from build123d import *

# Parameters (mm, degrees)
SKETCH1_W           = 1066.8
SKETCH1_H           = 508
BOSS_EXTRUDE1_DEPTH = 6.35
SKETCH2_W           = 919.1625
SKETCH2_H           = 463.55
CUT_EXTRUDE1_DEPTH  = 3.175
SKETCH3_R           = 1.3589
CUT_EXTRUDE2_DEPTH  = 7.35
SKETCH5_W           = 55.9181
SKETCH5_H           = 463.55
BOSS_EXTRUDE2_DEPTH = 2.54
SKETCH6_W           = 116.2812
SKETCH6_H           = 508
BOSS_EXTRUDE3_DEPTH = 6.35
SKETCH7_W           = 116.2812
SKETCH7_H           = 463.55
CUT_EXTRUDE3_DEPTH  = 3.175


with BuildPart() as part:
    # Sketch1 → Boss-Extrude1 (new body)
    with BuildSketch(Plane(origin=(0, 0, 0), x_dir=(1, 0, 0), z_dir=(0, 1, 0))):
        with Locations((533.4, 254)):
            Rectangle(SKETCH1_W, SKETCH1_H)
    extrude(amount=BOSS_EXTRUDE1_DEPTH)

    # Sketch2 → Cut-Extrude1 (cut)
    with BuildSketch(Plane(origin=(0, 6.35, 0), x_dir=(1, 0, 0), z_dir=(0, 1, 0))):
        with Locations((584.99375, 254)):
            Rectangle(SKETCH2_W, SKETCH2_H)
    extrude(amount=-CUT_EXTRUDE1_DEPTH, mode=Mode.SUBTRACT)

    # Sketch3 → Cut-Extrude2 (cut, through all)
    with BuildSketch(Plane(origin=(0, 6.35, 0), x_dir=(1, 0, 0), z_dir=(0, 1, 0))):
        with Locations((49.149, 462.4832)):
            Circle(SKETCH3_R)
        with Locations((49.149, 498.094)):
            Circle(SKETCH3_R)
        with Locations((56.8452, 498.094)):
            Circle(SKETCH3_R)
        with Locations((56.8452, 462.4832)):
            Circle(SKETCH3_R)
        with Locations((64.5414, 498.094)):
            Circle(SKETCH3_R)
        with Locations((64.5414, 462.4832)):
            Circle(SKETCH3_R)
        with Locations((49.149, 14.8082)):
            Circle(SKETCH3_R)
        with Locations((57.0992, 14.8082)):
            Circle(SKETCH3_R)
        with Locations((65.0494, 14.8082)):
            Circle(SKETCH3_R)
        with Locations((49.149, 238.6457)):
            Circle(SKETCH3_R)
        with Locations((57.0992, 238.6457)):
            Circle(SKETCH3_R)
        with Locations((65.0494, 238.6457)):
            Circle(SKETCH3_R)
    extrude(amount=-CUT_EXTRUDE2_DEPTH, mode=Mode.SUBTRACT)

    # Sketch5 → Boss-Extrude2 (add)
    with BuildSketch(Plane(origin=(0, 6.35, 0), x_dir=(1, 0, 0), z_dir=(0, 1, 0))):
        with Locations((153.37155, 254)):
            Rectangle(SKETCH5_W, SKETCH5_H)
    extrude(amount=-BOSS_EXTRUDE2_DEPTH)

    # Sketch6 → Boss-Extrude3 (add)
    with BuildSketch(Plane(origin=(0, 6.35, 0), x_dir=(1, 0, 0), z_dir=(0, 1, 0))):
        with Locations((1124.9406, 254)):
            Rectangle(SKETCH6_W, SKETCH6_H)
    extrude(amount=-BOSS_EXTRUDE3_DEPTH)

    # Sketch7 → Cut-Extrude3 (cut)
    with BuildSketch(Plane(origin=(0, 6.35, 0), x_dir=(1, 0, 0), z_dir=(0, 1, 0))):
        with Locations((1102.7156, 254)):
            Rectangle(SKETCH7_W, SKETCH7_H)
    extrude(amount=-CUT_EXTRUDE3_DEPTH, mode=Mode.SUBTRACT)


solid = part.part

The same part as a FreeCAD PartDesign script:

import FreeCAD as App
import Part
import Sketcher
from FreeCAD import Vector
Q = App.Units.Quantity

doc = App.newDocument("Part")
params = doc.addObject("Spreadsheet::Sheet", "Params")
for row, (alias, value) in enumerate([
    ("sketch1_width", "42 in"),
    ("sketch1_height", "20 in"),
    ("pad1_length", "0.25 in"),
    ("sketch2_height", "18.25 in"),
    ("sketch2_width", "36.1875 in"),
    ("pocket1_length", "0.125 in"),
    ("sketch3_diameter", "0.107 in"),
    ("sketch4_height", "18.25 in"),
    ("pad2_length", "0.1 in"),
    ("sketch5_height", "20 in"),
    ("sketch5_width", "4.578 in"),
    ("pad3_length", "0.25 in"),
    ("sketch6_height", "18.25 in"),
    ("sketch6_width", "4.578 in"),
    ("pocket3_length", "0.125 in"),
], start=1):
    params.set(f"A{row}", alias)
    params.set(f"B{row}", "=" + value)
    params.setAlias(f"B{row}", alias)

body = doc.addObject("PartDesign::Body", "Body")

# Sketch on XZ plane
sketch1 = body.newObject("Sketcher::SketchObject", "Sketch")
sketch1.AttachmentSupport = (doc.getObject("XZ_Plane"), [""])
sketch1.MapMode = "FlatFace"
sketch1.addGeometry([
    Part.LineSegment(Vector(0, -508, 0), Vector(0, 0, 0)),
    Part.LineSegment(Vector(0, 0, 0), Vector(1067, 0, 0)),
    Part.LineSegment(Vector(1067, 0, 0), Vector(1067, -508, 0)),
    Part.LineSegment(Vector(1067, -508, 0), Vector(0, -508, 0)),
], False)
sketch1.addConstraint([
    Sketcher.Constraint("Coincident", 0, 2, 1, 1),
    Sketcher.Constraint("Coincident", 1, 2, 2, 1),
    Sketcher.Constraint("Coincident", 2, 2, 3, 1),
    Sketcher.Constraint("Coincident", 3, 2, 0, 1),
    Sketcher.Constraint("Vertical", 0),
    Sketcher.Constraint("Horizontal", 1),
    Sketcher.Constraint("Vertical", 2),
    Sketcher.Constraint("Horizontal", 3),
    Sketcher.Constraint("Coincident", 0, 2, -1, 1),
    Sketcher.Constraint("DistanceX", 1, 1, 1, 2, Q("42 in")),
    Sketcher.Constraint("DistanceY", 0, 1, 0, 2, Q("20 in")),
])
sketch1.setExpression("Constraints[9]", "Params.sketch1_width")
sketch1.setExpression("Constraints[10]", "Params.sketch1_height")
pad1 = body.newObject("PartDesign::Pad", "Pad")
pad1.Profile = sketch1
pad1.setExpression("Length", "Params.pad1_length")
pad1.Reversed = True

# Sketch on XZ plane
sketch2 = body.newObject("Sketcher::SketchObject", "Sketch001")
sketch2.AttachmentSupport = (doc.getObject("XZ_Plane"), [""])
sketch2.MapMode = "FlatFace"
sketch2.AttachmentOffset = App.Placement(Vector(0, 0, -0.25 * 25.4), App.Rotation())
sketch2.addGeometry([
    Part.LineSegment(Vector(125, -486, 0), Vector(125, -22, 0)),
    Part.LineSegment(Vector(125, -22, 0), Vector(1045, -22, 0)),
    Part.LineSegment(Vector(1045, -22, 0), Vector(1045, -486, 0)),
    Part.LineSegment(Vector(1045, -486, 0), Vector(125, -486, 0)),
], False)
sketch2.addConstraint([
    Sketcher.Constraint("Coincident", 0, 2, 1, 1),
    Sketcher.Constraint("Coincident", 1, 2, 2, 1),
    Sketcher.Constraint("Coincident", 2, 2, 3, 1),
    Sketcher.Constraint("Coincident", 3, 2, 0, 1),
    Sketcher.Constraint("Vertical", 0),
    Sketcher.Constraint("Horizontal", 1),
    Sketcher.Constraint("Vertical", 2),
    Sketcher.Constraint("Horizontal", 3),
    Sketcher.Constraint("DistanceY", 0, 1, 0, 2, Q("18.25 in")),
    Sketcher.Constraint("DistanceX", 1, 1, 1, 2, Q("36.1875 in")),
    Sketcher.Constraint("DistanceX", -1, 1, 0, 2, Q("4.9375 in")),
    Sketcher.Constraint("DistanceY", 0, 2, -1, 1, Q("0.875 in")),
])
sketch2.setExpression("Constraints[8]", "Params.sketch2_height")
sketch2.setExpression("Constraints[9]", "Params.sketch2_width")
pocket1 = body.newObject("PartDesign::Pocket", "Pocket")
pocket1.Profile = sketch2
pocket1.setExpression("Length", "Params.pocket1_length")
pocket1.Reversed = True

# Sketch on XZ plane
sketch3 = body.newObject("Sketcher::SketchObject", "Sketch002")
sketch3.AttachmentSupport = (doc.getObject("XZ_Plane"), [""])
sketch3.MapMode = "FlatFace"
sketch3.AttachmentOffset = App.Placement(Vector(0, 0, -0.25 * 25.4), App.Rotation())
sketch3.addGeometry([
    Part.Circle(Vector(49.1, -462.5, 0), Vector(0, 0, 1), 1.4),  # 0
    Part.Circle(Vector(49.1, -498.1, 0), Vector(0, 0, 1), 1.4),  # 1
    Part.Circle(Vector(56.8, -498.1, 0), Vector(0, 0, 1), 1.4),  # 2
    Part.Circle(Vector(56.8, -462.5, 0), Vector(0, 0, 1), 1.4),  # 3
    Part.Circle(Vector(64.5, -498.1, 0), Vector(0, 0, 1), 1.4),  # 4
    Part.Circle(Vector(64.5, -462.5, 0), Vector(0, 0, 1), 1.4),  # 5
    Part.Circle(Vector(49.1, -14.8, 0), Vector(0, 0, 1), 1.4),  # 6
    Part.Circle(Vector(57.1, -14.8, 0), Vector(0, 0, 1), 1.4),  # 7
    Part.Circle(Vector(65, -14.8, 0), Vector(0, 0, 1), 1.4),  # 8
    Part.Circle(Vector(49.1, -238.6, 0), Vector(0, 0, 1), 1.4),  # 9
    Part.Circle(Vector(57.1, -238.6, 0), Vector(0, 0, 1), 1.4),  # 10
    Part.Circle(Vector(65, -238.6, 0), Vector(0, 0, 1), 1.4),  # 11
], False)
sketch3.addConstraint([
    Sketcher.Constraint("Equal", 0, 1),
    Sketcher.Constraint("Equal", 1, 2),
    Sketcher.Constraint("Equal", 2, 3),
    Sketcher.Constraint("Equal", 3, 4),
    Sketcher.Constraint("Equal", 4, 5),
    Sketcher.Constraint("Equal", 5, 6),
    Sketcher.Constraint("Equal", 6, 7),
    Sketcher.Constraint("Equal", 7, 8),
    Sketcher.Constraint("Equal", 8, 9),
    Sketcher.Constraint("Equal", 9, 10),
    Sketcher.Constraint("Equal", 10, 11),
    Sketcher.Constraint("Horizontal", 1, 3, 2, 3),
    Sketcher.Constraint("Horizontal", 0, 3, 3, 3),
    Sketcher.Constraint("Horizontal", 2, 3, 4, 3),
    Sketcher.Constraint("Horizontal", 3, 3, 5, 3),
    Sketcher.Constraint("Horizontal", 6, 3, 7, 3),
    Sketcher.Constraint("Horizontal", 7, 3, 8, 3),
    Sketcher.Constraint("Horizontal", 9, 3, 10, 3),
    Sketcher.Constraint("Horizontal", 10, 3, 11, 3),
    Sketcher.Constraint("Vertical", 0, 3, 1, 3),
    Sketcher.Constraint("Vertical", 2, 3, 3, 3),
    Sketcher.Constraint("Vertical", 4, 3, 5, 3),
    Sketcher.Constraint("Vertical", 1, 3, 6, 3),
    Sketcher.Constraint("Vertical", 6, 3, 9, 3),
    Sketcher.Constraint("Vertical", 7, 3, 10, 3),
    Sketcher.Constraint("Vertical", 8, 3, 11, 3),
    Sketcher.Constraint("Diameter", 0, Q("0.107 in")),
    Sketcher.Constraint("DistanceY", 1, 3, -1, 1, Q("19.61 in")),
    Sketcher.Constraint("DistanceX", 3, 3, 7, 3, Q("0.01 in")),
    Sketcher.Constraint("DistanceX", 5, 3, 8, 3, Q("0.02 in")),
    Sketcher.Constraint("DistanceX", -1, 1, 0, 3, Q("1.935 in")),
    Sketcher.Constraint("DistanceY", 0, 3, -1, 1, Q("18.208 in")),
    Sketcher.Constraint("DistanceX", -1, 1, 2, 3, Q("2.238 in")),
    Sketcher.Constraint("DistanceX", -1, 1, 4, 3, Q("2.541 in")),
    Sketcher.Constraint("DistanceY", 6, 3, -1, 1, Q("0.583 in")),
    Sketcher.Constraint("DistanceY", 0, 3, 9, 3, Q("8.8125 in")),
])
sketch3.setExpression("Constraints[26]", "Params.sketch3_diameter")
pocket2 = body.newObject("PartDesign::Pocket", "Pocket001")
pocket2.Profile = sketch3
pocket2.Type = "ThroughAll"
pocket2.Reversed = True

# Sketch on XZ plane
sketch4 = body.newObject("Sketcher::SketchObject", "Sketch003")
sketch4.AttachmentSupport = (doc.getObject("XZ_Plane"), [""])
sketch4.MapMode = "FlatFace"
sketch4.AttachmentOffset = App.Placement(Vector(0, 0, -0.25 * 25.4), App.Rotation())
sketch4.addGeometry([
    Part.LineSegment(Vector(125, -486, 0), Vector(125, -22, 0)),
    Part.LineSegment(Vector(125, -22, 0), Vector(181, -22, 0)),
    Part.LineSegment(Vector(181, -22, 0), Vector(181, -486, 0)),
    Part.LineSegment(Vector(181, -486, 0), Vector(125, -486, 0)),
], False)
sketch4.addConstraint([
    Sketcher.Constraint("Coincident", 0, 2, 1, 1),
    Sketcher.Constraint("Coincident", 1, 2, 2, 1),
    Sketcher.Constraint("Coincident", 2, 2, 3, 1),
    Sketcher.Constraint("Coincident", 3, 2, 0, 1),
    Sketcher.Constraint("Vertical", 0),
    Sketcher.Constraint("Horizontal", 1),
    Sketcher.Constraint("Vertical", 2),
    Sketcher.Constraint("Horizontal", 3),
    Sketcher.Constraint("DistanceY", 0, 1, 0, 2, Q("18.25 in")),
    Sketcher.Constraint("DistanceX", 1, 1, 1, 2, Q("2.2015 in")),
    Sketcher.Constraint("DistanceX", -1, 1, 0, 2, Q("4.9375 in")),
    Sketcher.Constraint("DistanceY", 0, 2, -1, 1, Q("0.875 in")),
])
sketch4.setExpression("Constraints[8]", "Params.sketch4_height")
pad2 = body.newObject("PartDesign::Pad", "Pad001")
pad2.Profile = sketch4
pad2.setExpression("Length", "Params.pad2_length")

# Sketch on XZ plane
sketch5 = body.newObject("Sketcher::SketchObject", "Sketch004")
sketch5.AttachmentSupport = (doc.getObject("XZ_Plane"), [""])
sketch5.MapMode = "FlatFace"
sketch5.AttachmentOffset = App.Placement(Vector(0, 0, -0.25 * 25.4), App.Rotation())
sketch5.addGeometry([
    Part.LineSegment(Vector(1067, -508, 0), Vector(1067, 0, 0)),
    Part.LineSegment(Vector(1067, 0, 0), Vector(1183, 0, 0)),
    Part.LineSegment(Vector(1183, 0, 0), Vector(1183, -508, 0)),
    Part.LineSegment(Vector(1183, -508, 0), Vector(1067, -508, 0)),
], False)
sketch5.addConstraint([
    Sketcher.Constraint("Coincident", 0, 2, 1, 1),
    Sketcher.Constraint("Coincident", 1, 2, 2, 1),
    Sketcher.Constraint("Coincident", 2, 2, 3, 1),
    Sketcher.Constraint("Coincident", 3, 2, 0, 1),
    Sketcher.Constraint("Vertical", 0),
    Sketcher.Constraint("Horizontal", 1),
    Sketcher.Constraint("Vertical", 2),
    Sketcher.Constraint("Horizontal", 3),
    Sketcher.Constraint("PointOnObject", 0, 2, -1),
    Sketcher.Constraint("DistanceY", 0, 1, 0, 2, Q("20 in")),
    Sketcher.Constraint("DistanceX", -1, 1, 0, 2, Q("42 in")),
    Sketcher.Constraint("DistanceX", 1, 1, 1, 2, Q("4.578 in")),
])
sketch5.setExpression("Constraints[9]", "Params.sketch5_height")
sketch5.setExpression("Constraints[11]", "Params.sketch5_width")
pad3 = body.newObject("PartDesign::Pad", "Pad002")
pad3.Profile = sketch5
pad3.setExpression("Length", "Params.pad3_length")

# Sketch on XZ plane
sketch6 = body.newObject("Sketcher::SketchObject", "Sketch005")
sketch6.AttachmentSupport = (doc.getObject("XZ_Plane"), [""])
sketch6.MapMode = "FlatFace"
sketch6.AttachmentOffset = App.Placement(Vector(0, 0, -0.25 * 25.4), App.Rotation())
sketch6.addGeometry([
    Part.LineSegment(Vector(1045, -486, 0), Vector(1045, -22, 0)),
    Part.LineSegment(Vector(1045, -22, 0), Vector(1161, -22, 0)),
    Part.LineSegment(Vector(1161, -22, 0), Vector(1161, -486, 0)),
    Part.LineSegment(Vector(1161, -486, 0), Vector(1045, -486, 0)),
], False)
sketch6.addConstraint([
    Sketcher.Constraint("Coincident", 0, 2, 1, 1),
    Sketcher.Constraint("Coincident", 1, 2, 2, 1),
    Sketcher.Constraint("Coincident", 2, 2, 3, 1),
    Sketcher.Constraint("Coincident", 3, 2, 0, 1),
    Sketcher.Constraint("Vertical", 0),
    Sketcher.Constraint("Horizontal", 1),
    Sketcher.Constraint("Vertical", 2),
    Sketcher.Constraint("Horizontal", 3),
    Sketcher.Constraint("DistanceY", 0, 1, 0, 2, Q("18.25 in")),
    Sketcher.Constraint("DistanceX", 1, 1, 1, 2, Q("4.578 in")),
    Sketcher.Constraint("DistanceX", -1, 1, 0, 2, Q("41.125 in")),
    Sketcher.Constraint("DistanceY", 0, 2, -1, 1, Q("0.875 in")),
])
sketch6.setExpression("Constraints[8]", "Params.sketch6_height")
sketch6.setExpression("Constraints[9]", "Params.sketch6_width")
pocket3 = body.newObject("PartDesign::Pocket", "Pocket002")
pocket3.Profile = sketch6
pocket3.setExpression("Length", "Params.pocket3_length")
pocket3.Reversed = True

doc.recompute()
